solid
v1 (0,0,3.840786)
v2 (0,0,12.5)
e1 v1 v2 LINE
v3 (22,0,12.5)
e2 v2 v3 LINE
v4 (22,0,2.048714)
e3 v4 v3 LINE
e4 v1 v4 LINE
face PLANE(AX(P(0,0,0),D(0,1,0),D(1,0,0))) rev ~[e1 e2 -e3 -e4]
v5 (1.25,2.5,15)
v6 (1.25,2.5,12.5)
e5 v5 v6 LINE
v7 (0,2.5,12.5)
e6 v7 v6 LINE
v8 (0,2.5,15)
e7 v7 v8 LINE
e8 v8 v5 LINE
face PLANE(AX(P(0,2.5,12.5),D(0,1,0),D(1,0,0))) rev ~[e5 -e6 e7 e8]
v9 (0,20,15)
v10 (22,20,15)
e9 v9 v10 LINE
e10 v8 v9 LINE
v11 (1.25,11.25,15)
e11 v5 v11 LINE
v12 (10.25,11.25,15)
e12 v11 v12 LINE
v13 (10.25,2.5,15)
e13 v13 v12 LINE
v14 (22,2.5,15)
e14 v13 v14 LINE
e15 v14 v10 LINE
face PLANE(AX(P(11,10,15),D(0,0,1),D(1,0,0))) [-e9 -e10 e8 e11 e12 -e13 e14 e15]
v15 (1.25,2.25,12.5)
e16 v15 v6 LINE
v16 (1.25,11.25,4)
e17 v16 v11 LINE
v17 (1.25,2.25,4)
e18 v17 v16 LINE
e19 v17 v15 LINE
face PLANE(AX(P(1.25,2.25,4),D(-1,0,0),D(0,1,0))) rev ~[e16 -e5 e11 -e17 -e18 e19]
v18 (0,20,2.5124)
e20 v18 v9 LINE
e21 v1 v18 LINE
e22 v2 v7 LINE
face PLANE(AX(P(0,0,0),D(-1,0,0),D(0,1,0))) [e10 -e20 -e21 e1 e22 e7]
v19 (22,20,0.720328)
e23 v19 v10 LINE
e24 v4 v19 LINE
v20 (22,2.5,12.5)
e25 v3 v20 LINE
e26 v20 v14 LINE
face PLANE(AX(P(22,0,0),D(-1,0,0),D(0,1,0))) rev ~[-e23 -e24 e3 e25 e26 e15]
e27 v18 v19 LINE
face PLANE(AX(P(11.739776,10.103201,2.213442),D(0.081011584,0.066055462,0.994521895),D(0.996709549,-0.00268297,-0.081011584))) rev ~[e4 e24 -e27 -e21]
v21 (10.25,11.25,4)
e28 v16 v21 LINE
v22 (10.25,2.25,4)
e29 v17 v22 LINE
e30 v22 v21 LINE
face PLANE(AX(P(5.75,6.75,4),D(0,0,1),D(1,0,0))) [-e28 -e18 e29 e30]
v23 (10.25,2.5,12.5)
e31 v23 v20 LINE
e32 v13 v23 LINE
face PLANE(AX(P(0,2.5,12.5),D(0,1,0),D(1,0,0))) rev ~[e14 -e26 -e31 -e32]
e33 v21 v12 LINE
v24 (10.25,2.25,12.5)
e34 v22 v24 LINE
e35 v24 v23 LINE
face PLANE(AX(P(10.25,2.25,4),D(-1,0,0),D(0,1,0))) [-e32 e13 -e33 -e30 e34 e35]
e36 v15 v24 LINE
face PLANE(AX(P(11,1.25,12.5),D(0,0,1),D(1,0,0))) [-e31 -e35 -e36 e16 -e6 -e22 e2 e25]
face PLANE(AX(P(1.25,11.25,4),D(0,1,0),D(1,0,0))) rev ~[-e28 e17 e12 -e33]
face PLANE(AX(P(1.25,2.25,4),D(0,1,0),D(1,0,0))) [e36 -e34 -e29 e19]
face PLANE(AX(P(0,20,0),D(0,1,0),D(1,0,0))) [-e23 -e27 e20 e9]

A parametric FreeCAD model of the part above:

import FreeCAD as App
import Part
import Sketcher
from FreeCAD import Vector

doc = App.newDocument("Part")
body = doc.addObject("PartDesign::Body", "Body")

# Sketch on XY plane
sketch1 = body.newObject("Sketcher::SketchObject", "Sketch")
sketch1.AttachmentSupport = (doc.getObject("XY_Plane"), [""])
sketch1.MapMode = "FlatFace"
sketch1.addGeometry([
    Part.LineSegment(Vector(0, 23, 0), Vector(0, 0, 0)),
    Part.LineSegment(Vector(0, 0, 0), Vector(24, 0, 0)),
    Part.LineSegment(Vector(24, 0, 0), Vector(24, 23, 0)),
    Part.LineSegment(Vector(24, 23, 0), Vector(0, 23, 0)),
], False)
sketch1.addConstraint([
    Sketcher.Constraint("Coincident", 0, 2, 1, 1),
    Sketcher.Constraint("Coincident", 1, 2, 2, 1),
    Sketcher.Constraint("Coincident", 2, 2, 3, 1),
    Sketcher.Constraint("Coincident", 3, 2, 0, 1),
    Sketcher.Constraint("Vertical", 0),
    Sketcher.Constraint("Horizontal", 1),
    Sketcher.Constraint("Vertical", 2),
    Sketcher.Constraint("Horizontal", 3),
    Sketcher.Constraint("Coincident", 0, 2, -1, 1),
    Sketcher.Constraint("DistanceX", 1, 1, 1, 2, 24.0),
    Sketcher.Constraint("DistanceY", 0, 2, 0, 1, 23.0),
])
pad1 = body.newObject("PartDesign::Pad", "Pad")
pad1.Profile = sketch1
pad1.Length = 10
body2 = doc.addObject("PartDesign::Body", "Body001")
doc.recompute()

body.Placement = App.Placement(Vector(0, 0, 0), App.Rotation(Vector(1, 0, 0), 356.200035))
boolean = body2.newObject("PartDesign::Boolean", "Boolean")
boolean.Type = "Fuse"
boolean.addObjects([body])
body3 = doc.addObject("PartDesign::Body", "Body002")
doc.recompute()

body2.Placement = App.Placement(Vector(0, 0, 0), App.Rotation(Vector(0, 1, 0), 4.646714))
boolean2 = body3.newObject("PartDesign::Boolean", "Boolean001")
boolean2.Type = "Fuse"
boolean2.addObjects([body2])
body4 = doc.addObject("PartDesign::Body", "Body003")
doc.recompute()

body3.Placement = App.Placement(Vector(-1, -2, -6), App.Rotation(Vector(0, 0, 1), 359.84577))
boolean3 = body4.newObject("PartDesign::Boolean", "Boolean002")
boolean3.Type = "Fuse"
boolean3.addObjects([body3])
body5 = doc.addObject("PartDesign::Body", "Body004")

# Sketch on XY plane
sketch2 = body5.newObject("Sketcher::SketchObject", "Sketch001")
sketch2.AttachmentSupport = (doc.getObject("XY_Plane004"), [""])
sketch2.MapMode = "FlatFace"
sketch2.AttachmentOffset = App.Placement(Vector(0, 0, 12.5), App.Rotation())
sketch2.addGeometry([
    Part.LineSegment(Vector(0, 2.5, 0), Vector(0, 0, 0)),
    Part.LineSegment(Vector(0, 0, 0), Vector(22, 0, 0)),
    Part.LineSegment(Vector(22, 0, 0), Vector(22, 2.5, 0)),
    Part.LineSegment(Vector(22, 2.5, 0), Vector(0, 2.5, 0)),
], False)
sketch2.addConstraint([
    Sketcher.Constraint("Coincident", 0, 2, 1, 1),
    Sketcher.Constraint("Coincident", 1, 2, 2, 1),
    Sketcher.Constraint("Coincident", 2, 2, 3, 1),
    Sketcher.Constraint("Coincident", 3, 2, 0, 1),
    Sketcher.Constraint("Vertical", 0),
    Sketcher.Constraint("Horizontal", 1),
    Sketcher.Constraint("Vertical", 2),
    Sketcher.Constraint("Horizontal", 3),
    Sketcher.Constraint("Coincident", 0, 2, -1, 1),
    Sketcher.Constraint("DistanceX", 1, 1, 1, 2, 22.0),
    Sketcher.Constraint("DistanceY", 0, 2, 0, 1, 2.5),
])
pad2 = body5.newObject("PartDesign::Pad", "Pad001")
pad2.Profile = sketch2
pad2.Length = 2.5
body6 = doc.addObject("PartDesign::Body", "Body005")

# Sketch on XY plane
sketch3 = body6.newObject("Sketcher::SketchObject", "Sketch002")
sketch3.AttachmentSupport = (doc.getObject("XY_Plane005"), [""])
sketch3.MapMode = "FlatFace"
sketch3.AttachmentOffset = App.Placement(Vector(0, 0, 4), App.Rotation())
sketch3.addGeometry([
    Part.LineSegment(Vector(1, 11, 0), Vector(1, 2, 0)),
    Part.LineSegment(Vector(1, 2, 0), Vector(10, 2, 0)),
    Part.LineSegment(Vector(10, 2, 0), Vector(10, 11, 0)),
    Part.LineSegment(Vector(10, 11, 0), Vector(1, 11, 0)),
], False)
sketch3.addConstraint([
    Sketcher.Constraint("Coincident", 0, 2, 1, 1),
    Sketcher.Constraint("Coincident", 1, 2, 2, 1),
    Sketcher.Constraint("Coincident", 2, 2, 3, 1),
    Sketcher.Constraint("Coincident", 3, 2, 0, 1),
    Sketcher.Constraint("Vertical", 0),
    Sketcher.Constraint("Horizontal", 1),
    Sketcher.Constraint("Vertical", 2),
    Sketcher.Constraint("Horizontal", 3),
    Sketcher.Constraint("Equal", 3, 0),
    Sketcher.Constraint("DistanceX", 1, 1, 1, 2, 9.0),
    Sketcher.Constraint("DistanceX", -1, 1, 0, 2, 1.25),
    Sketcher.Constraint("DistanceY", -1, 1, 0, 2, 2.25),
])
pad3 = body6.newObject("PartDesign::Pad", "Pad002")
pad3.Profile = sketch3
pad3.Length = 11
body7 = doc.addObject("PartDesign::Body", "Body006")

# Sketch on XY plane
sketch4 = body7.newObject("Sketcher::SketchObject", "Sketch003")
sketch4.AttachmentSupport = (doc.getObject("XY_Plane006"), [""])
sketch4.MapMode = "FlatFace"
sketch4.addGeometry([
    Part.LineSegment(Vector(0, 20, 0), Vector(0, 0, 0)),
    Part.LineSegment(Vector(0, 0, 0), Vector(22, 0, 0)),
    Part.LineSegment(Vector(22, 0, 0), Vector(22, 20, 0)),
    Part.LineSegment(Vector(22, 20, 0), Vector(0, 20, 0)),
], False)
sketch4.addConstraint([
    Sketcher.Constraint("Coincident", 0, 2, 1, 1),
    Sketcher.Constraint("Coincident", 1, 2, 2, 1),
    Sketcher.Constraint("Coincident", 2, 2, 3, 1),
    Sketcher.Constraint("Coincident", 3, 2, 0, 1),
    Sketcher.Constraint("Vertical", 0),
    Sketcher.Constraint("Horizontal", 1),
    Sketcher.Constraint("Vertical", 2),
    Sketcher.Constraint("Horizontal", 3),
    Sketcher.Constraint("Coincident", 0, 2, -1, 1),
    Sketcher.Constraint("DistanceX", 1, 1, 1, 2, 22.0),
    Sketcher.Constraint("DistanceY", 0, 2, 0, 1, 20.0),
])
pad4 = body7.newObject("PartDesign::Pad", "Pad003")
pad4.Profile = sketch4
pad4.Length = 15
doc.recompute()

boolean4 = body7.newObject("PartDesign::Boolean", "Boolean003")
boolean4.Type = "Cut"
boolean4.addObjects([body6])
doc.recompute()

boolean5 = body7.newObject("PartDesign::Boolean", "Boolean004")
boolean5.Type = "Cut"
boolean5.addObjects([body5])
doc.recompute()

boolean6 = body7.newObject("PartDesign::Boolean", "Boolean005")
boolean6.Type = "Cut"
boolean6.addObjects([body4])

doc.recompute()
